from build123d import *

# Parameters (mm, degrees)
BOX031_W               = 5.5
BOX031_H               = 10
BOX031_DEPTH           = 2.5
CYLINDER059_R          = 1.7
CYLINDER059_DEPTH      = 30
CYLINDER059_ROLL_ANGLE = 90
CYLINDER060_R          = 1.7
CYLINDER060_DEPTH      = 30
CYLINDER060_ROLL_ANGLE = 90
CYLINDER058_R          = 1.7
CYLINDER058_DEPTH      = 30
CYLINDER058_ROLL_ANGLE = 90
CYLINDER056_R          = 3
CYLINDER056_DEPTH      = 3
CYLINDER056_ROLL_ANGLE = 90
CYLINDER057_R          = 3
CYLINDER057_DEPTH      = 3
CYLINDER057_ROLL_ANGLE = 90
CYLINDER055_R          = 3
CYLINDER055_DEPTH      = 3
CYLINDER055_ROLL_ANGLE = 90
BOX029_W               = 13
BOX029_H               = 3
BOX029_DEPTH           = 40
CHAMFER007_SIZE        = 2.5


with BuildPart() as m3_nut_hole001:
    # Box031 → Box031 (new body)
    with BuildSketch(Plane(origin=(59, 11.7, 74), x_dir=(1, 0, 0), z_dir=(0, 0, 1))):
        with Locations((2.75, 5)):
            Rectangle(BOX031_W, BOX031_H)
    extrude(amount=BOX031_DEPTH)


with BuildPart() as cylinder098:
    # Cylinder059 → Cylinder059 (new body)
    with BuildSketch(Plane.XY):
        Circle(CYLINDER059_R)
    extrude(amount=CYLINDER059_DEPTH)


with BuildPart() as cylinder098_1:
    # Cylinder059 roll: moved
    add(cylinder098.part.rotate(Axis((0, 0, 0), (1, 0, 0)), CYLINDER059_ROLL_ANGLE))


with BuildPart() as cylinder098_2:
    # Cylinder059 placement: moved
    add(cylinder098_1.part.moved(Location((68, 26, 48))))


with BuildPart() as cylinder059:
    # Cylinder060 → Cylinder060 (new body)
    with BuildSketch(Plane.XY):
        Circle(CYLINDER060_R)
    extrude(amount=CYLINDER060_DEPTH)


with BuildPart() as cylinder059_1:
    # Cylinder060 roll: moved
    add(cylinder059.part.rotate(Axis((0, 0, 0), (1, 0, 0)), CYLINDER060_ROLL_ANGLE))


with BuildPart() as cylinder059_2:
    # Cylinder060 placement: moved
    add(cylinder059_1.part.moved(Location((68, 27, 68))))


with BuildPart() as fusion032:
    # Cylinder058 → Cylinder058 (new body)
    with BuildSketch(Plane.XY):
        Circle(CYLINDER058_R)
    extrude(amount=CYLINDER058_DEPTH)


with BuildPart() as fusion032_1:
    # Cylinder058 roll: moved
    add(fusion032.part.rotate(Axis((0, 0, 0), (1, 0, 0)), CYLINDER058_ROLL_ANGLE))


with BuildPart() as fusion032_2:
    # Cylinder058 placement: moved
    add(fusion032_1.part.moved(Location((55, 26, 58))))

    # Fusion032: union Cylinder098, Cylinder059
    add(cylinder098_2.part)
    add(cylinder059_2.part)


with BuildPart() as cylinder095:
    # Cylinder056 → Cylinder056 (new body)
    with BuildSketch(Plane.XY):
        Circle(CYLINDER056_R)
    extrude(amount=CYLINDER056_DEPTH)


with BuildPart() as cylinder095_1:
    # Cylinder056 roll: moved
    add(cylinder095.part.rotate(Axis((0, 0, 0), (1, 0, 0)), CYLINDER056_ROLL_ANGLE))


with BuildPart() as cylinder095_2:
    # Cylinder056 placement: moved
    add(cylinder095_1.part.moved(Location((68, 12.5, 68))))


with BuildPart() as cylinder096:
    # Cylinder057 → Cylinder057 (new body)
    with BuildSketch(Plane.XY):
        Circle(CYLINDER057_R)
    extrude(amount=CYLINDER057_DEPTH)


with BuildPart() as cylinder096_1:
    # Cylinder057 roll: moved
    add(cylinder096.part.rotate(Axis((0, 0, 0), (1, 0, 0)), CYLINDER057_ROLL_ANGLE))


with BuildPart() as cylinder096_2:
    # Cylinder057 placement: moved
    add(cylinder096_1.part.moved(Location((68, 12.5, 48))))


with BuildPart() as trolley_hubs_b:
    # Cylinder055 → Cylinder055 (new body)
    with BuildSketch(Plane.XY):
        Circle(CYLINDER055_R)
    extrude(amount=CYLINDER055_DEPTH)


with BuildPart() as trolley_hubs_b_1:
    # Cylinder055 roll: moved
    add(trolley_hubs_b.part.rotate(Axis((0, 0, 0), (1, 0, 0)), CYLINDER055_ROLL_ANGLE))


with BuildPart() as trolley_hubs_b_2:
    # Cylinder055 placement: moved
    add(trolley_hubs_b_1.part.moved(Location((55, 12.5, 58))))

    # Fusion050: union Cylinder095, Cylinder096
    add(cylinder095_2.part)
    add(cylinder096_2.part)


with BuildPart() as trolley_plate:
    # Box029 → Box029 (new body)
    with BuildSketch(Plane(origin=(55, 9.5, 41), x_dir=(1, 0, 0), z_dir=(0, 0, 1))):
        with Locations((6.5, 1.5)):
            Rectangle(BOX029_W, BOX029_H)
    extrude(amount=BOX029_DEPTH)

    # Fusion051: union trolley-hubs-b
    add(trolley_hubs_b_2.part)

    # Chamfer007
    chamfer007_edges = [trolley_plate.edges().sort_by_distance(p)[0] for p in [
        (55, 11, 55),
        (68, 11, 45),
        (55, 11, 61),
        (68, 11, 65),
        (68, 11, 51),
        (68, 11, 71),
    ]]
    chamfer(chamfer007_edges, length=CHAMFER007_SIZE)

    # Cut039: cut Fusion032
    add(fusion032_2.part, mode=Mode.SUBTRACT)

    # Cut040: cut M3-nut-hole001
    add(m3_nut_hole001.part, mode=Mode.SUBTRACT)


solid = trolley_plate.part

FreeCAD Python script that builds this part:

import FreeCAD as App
import Part
import Sketcher

V = App.Vector
Q = App.Units.Quantity


def edges_at(feature, points):
    """Names of the edges that pass closest to the given points."""
    edges = feature.Shape.Edges
    near = lambda p: min(range(len(edges)), key=lambda i: edges[i].distToShape(Part.Vertex(*p))[0])
    return sorted({f"Edge{near(p) + 1}" for p in points})

doc = App.newDocument("Part")
body = doc.addObject("PartDesign::Body", "Body")

# Sketch on XY plane
sketch1 = body.newObject("Sketcher::SketchObject", "Sketch")
sketch1.AttachmentSupport = (doc.getObject("XY_Plane"), [""])
sketch1.MapMode = "FlatFace"
sketch1.AttachmentOffset = App.Placement(V(0, 0, 74), App.Rotation())
sketch1.addGeometry(Part.LineSegment(V(59, 21.7, 0), V(59, 11.7, 0)), False)
sketch1.addGeometry(Part.LineSegment(V(59, 11.7, 0), V(64.5, 11.7, 0)), False)
sketch1.addGeometry(Part.LineSegment(V(64.5, 11.7, 0), V(64.5, 21.7, 0)), False)
sketch1.addGeometry(Part.LineSegment(V(64.5, 21.7, 0), V(59, 21.7, 0)), False)
sketch1.addConstraint(Sketcher.Constraint("Coincident", 0, 2, 1, 1))
sketch1.addConstraint(Sketcher.Constraint("Coincident", 1, 2, 2, 1))
sketch1.addConstraint(Sketcher.Constraint("Coincident", 2, 2, 3, 1))
sketch1.addConstraint(Sketcher.Constraint("Coincident", 3, 2, 0, 1))
sketch1.addConstraint(Sketcher.Constraint("Vertical", 0))
sketch1.addConstraint(Sketcher.Constraint("Horizontal", 1))
sketch1.addConstraint(Sketcher.Constraint("Vertical", 2))
sketch1.addConstraint(Sketcher.Constraint("Horizontal", 3))
sketch1.addConstraint(Sketcher.Constraint("DistanceY", 0, 2, 0, 1, Q("10 mm")))
sketch1.addConstraint(Sketcher.Constraint("DistanceX", 1, 1, 1, 2, Q("5.5 mm")))
sketch1.addConstraint(Sketcher.Constraint("DistanceX", -1, 1, 0, 2, Q("59 mm")))
sketch1.addConstraint(Sketcher.Constraint("DistanceY", -1, 1, 0, 2, Q("11.7 mm")))
pad1 = body.newObject("PartDesign::Pad", "Pad")
pad1.Profile = sketch1
pad1.Length = 2.5
body2 = doc.addObject("PartDesign::Body", "Body001")

# Sketch on XY plane
sketch2 = body2.newObject("Sketcher::SketchObject", "Sketch001")
sketch2.AttachmentSupport = (doc.getObject("XY_Plane001"), [""])
sketch2.MapMode = "FlatFace"
sketch2.addGeometry(Part.Circle(V(0, 0, 0), V(0, 0, 1), 1.7), False)
sketch2.addConstraint(Sketcher.Constraint("Coincident", 0, 3, -1, 1))
sketch2.addConstraint(Sketcher.Constraint("Diameter", 0, Q("3.4 mm")))
pad2 = body2.newObject("PartDesign::Pad", "Pad001")
pad2.Profile = sketch2
pad2.Length = 30
body3 = doc.addObject("PartDesign::Body", "Body002")
doc.recompute()

body2.Placement = App.Placement(V(0, 0, 0), App.Rotation(V(1, 0, 0), 90))
boolean = body3.newObject("PartDesign::Boolean", "Boolean")
boolean.Type = "Fuse"
boolean.addObjects([body2])
body4 = doc.addObject("PartDesign::Body", "Body003")
doc.recompute()

body3.Placement = App.Placement(V(68, 26, 48), App.Rotation(V(0, 0, 1), 0))
boolean2 = body4.newObject("PartDesign::Boolean", "Boolean001")
boolean2.Type = "Fuse"
boolean2.addObjects([body3])
body5 = doc.addObject("PartDesign::Body", "Body004")

# Sketch on XY plane
sketch3 = body5.newObject("Sketcher::SketchObject", "Sketch002")
sketch3.AttachmentSupport = (doc.getObject("XY_Plane004"), [""])
sketch3.MapMode = "FlatFace"
sketch3.addGeometry(Part.Circle(V(0, 0, 0), V(0, 0, 1), 1.7), False)
sketch3.addConstraint(Sketcher.Constraint("Coincident", 0, 3, -1, 1))
sketch3.addConstraint(Sketcher.Constraint("Diameter", 0, Q("3.4 mm")))
pad3 = body5.newObject("PartDesign::Pad", "Pad002")
pad3.Profile = sketch3
pad3.Length = 30
body6 = doc.addObject("PartDesign::Body", "Body005")
doc.recompute()

body5.Placement = App.Placement(V(0, 0, 0), App.Rotation(V(1, 0, 0), 90))
boolean3 = body6.newObject("PartDesign::Boolean", "Boolean002")
boolean3.Type = "Fuse"
boolean3.addObjects([body5])
body7 = doc.addObject("PartDesign::Body", "Body006")
doc.recompute()

body6.Placement = App.Placement(V(68, 27, 68), App.Rotation(V(0, 0, 1), 0))
boolean4 = body7.newObject("PartDesign::Boolean", "Boolean003")
boolean4.Type = "Fuse"
boolean4.addObjects([body6])
body8 = doc.addObject("PartDesign::Body", "Body007")

# Sketch on XY plane
sketch4 = body8.newObject("Sketcher::SketchObject", "Sketch003")
sketch4.AttachmentSupport = (doc.getObject("XY_Plane007"), [""])
sketch4.MapMode = "FlatFace"
sketch4.addGeometry(Part.Circle(V(0, 0, 0), V(0, 0, 1), 1.7), False)
sketch4.addConstraint(Sketcher.Constraint("Coincident", 0, 3, -1, 1))
sketch4.addConstraint(Sketcher.Constraint("Diameter", 0, Q("3.4 mm")))
pad4 = body8.newObject("PartDesign::Pad", "Pad003")
pad4.Profile = sketch4
pad4.Length = 30
body9 = doc.addObject("PartDesign::Body", "Body008")
doc.recompute()

body8.Placement = App.Placement(V(0, 0, 0), App.Rotation(V(1, 0, 0), 90))
boolean5 = body9.newObject("PartDesign::Boolean", "Boolean004")
boolean5.Type = "Fuse"
boolean5.addObjects([body8])
body10 = doc.addObject("PartDesign::Body", "Body009")
body10.AllowCompound = True
doc.recompute()

body9.Placement = App.Placement(V(55, 26, 58), App.Rotation(V(0, 0, 1), 0))
boolean6 = body10.newObject("PartDesign::Boolean", "Boolean005")
boolean6.Type = "Fuse"
boolean6.addObjects([body9])
doc.recompute()

boolean7 = body10.newObject("PartDesign::Boolean", "Boolean006")
boolean7.Type = "Fuse"
boolean7.addObjects([body4])
doc.recompute()

boolean8 = body10.newObject("PartDesign::Boolean", "Boolean007")
boolean8.Type = "Fuse"
boolean8.addObjects([body7])
body11 = doc.addObject("PartDesign::Body", "Body010")

# Sketch on XY plane
sketch5 = body11.newObject("Sketcher::SketchObject", "Sketch004")
sketch5.AttachmentSupport = (doc.getObject("XY_Plane010"), [""])
sketch5.MapMode = "FlatFace"
sketch5.addGeometry(Part.Circle(V(0, 0, 0), V(0, 0, 1), 3), False)
sketch5.addConstraint(Sketcher.Constraint("Coincident", 0, 3, -1, 1))
sketch5.addConstraint(Sketcher.Constraint("Diameter", 0, Q("6 mm")))
pad5 = body11.newObject("PartDesign::Pad", "Pad004")
pad5.Profile = sketch5
pad5.Length = 3
body12 = doc.addObject("PartDesign::Body", "Body011")
doc.recompute()

body11.Placement = App.Placement(V(0, 0, 0), App.Rotation(V(1, 0, 0), 90))
boolean9 = body12.newObject("PartDesign::Boolean", "Boolean008")
boolean9.Type = "Fuse"
boolean9.addObjects([body11])
body13 = doc.addObject("PartDesign::Body", "Body012")
doc.recompute()

body12.Placement = App.Placement(V(68, 12.5, 68), App.Rotation(V(0, 0, 1), 0))
boolean10 = body13.newObject("PartDesign::Boolean", "Boolean009")
boolean10.Type = "Fuse"
boolean10.addObjects([body12])
body14 = doc.addObject("PartDesign::Body", "Body013")

# Sketch on XY plane
sketch6 = body14.newObject("Sketcher::SketchObject", "Sketch005")
sketch6.AttachmentSupport = (doc.getObject("XY_Plane013"), [""])
sketch6.MapMode = "FlatFace"
sketch6.addGeometry(Part.Circle(V(0, 0, 0), V(0, 0, 1), 3), False)
sketch6.addConstraint(Sketcher.Constraint("Coincident", 0, 3, -1, 1))
sketch6.addConstraint(Sketcher.Constraint("Diameter", 0, Q("6 mm")))
pad6 = body14.newObject("PartDesign::Pad", "Pad005")
pad6.Profile = sketch6
pad6.Length = 3
body15 = doc.addObject("PartDesign::Body", "Body014")
doc.recompute()

body14.Placement = App.Placement(V(0, 0, 0), App.Rotation(V(1, 0, 0), 90))
boolean11 = body15.newObject("PartDesign::Boolean", "Boolean010")
boolean11.Type = "Fuse"
boolean11.addObjects([body14])
body16 = doc.addObject("PartDesign::Body", "Body015")
doc.recompute()

body15.Placement = App.Placement(V(68, 12.5, 48), App.Rotation(V(0, 0, 1), 0))
boolean12 = body16.newObject("PartDesign::Boolean", "Boolean011")
boolean12.Type = "Fuse"
boolean12.addObjects([body15])
body17 = doc.addObject("PartDesign::Body", "Body016")

# Sketch on XY plane
sketch7 = body17.newObject("Sketcher::SketchObject", "Sketch006")
sketch7.AttachmentSupport = (doc.getObject("XY_Plane016"), [""])
sketch7.MapMode = "FlatFace"
sketch7.addGeometry(Part.Circle(V(0, 0, 0), V(0, 0, 1), 3), False)
sketch7.addConstraint(Sketcher.Constraint("Coincident", 0, 3, -1, 1))
sketch7.addConstraint(Sketcher.Constraint("Diameter", 0, Q("6 mm")))
pad7 = body17.newObject("PartDesign::Pad", "Pad006")
pad7.Profile = sketch7
pad7.Length = 3
body18 = doc.addObject("PartDesign::Body", "Body017")
doc.recompute()

body17.Placement = App.Placement(V(0, 0, 0), App.Rotation(V(1, 0, 0), 90))
boolean13 = body18.newObject("PartDesign::Boolean", "Boolean012")
boolean13.Type = "Fuse"
boolean13.addObjects([body17])
body19 = doc.addObject("PartDesign::Body", "Body018")
body19.AllowCompound = True
doc.recompute()

body18.Placement = App.Placement(V(55, 12.5, 58), App.Rotation(V(0, 0, 1), 0))
boolean14 = body19.newObject("PartDesign::Boolean", "Boolean013")
boolean14.Type = "Fuse"
boolean14.addObjects([body18])
doc.recompute()

boolean15 = body19.newObject("PartDesign::Boolean", "Boolean014")
boolean15.Type = "Fuse"
boolean15.addObjects([body13])
doc.recompute()

boolean16 = body19.newObject("PartDesign::Boolean", "Boolean015")
boolean16.Type = "Fuse"
boolean16.addObjects([body16])
body20 = doc.addObject("PartDesign::Body", "Body019")

# Sketch on XY plane
sketch8 = body20.newObject("Sketcher::SketchObject", "Sketch007")
sketch8.AttachmentSupport = (doc.getObject("XY_Plane019"), [""])
sketch8.MapMode = "FlatFace"
sketch8.AttachmentOffset = App.Placement(V(0, 0, 41), App.Rotation())
sketch8.addGeometry(Part.LineSegment(V(55, 12.5, 0), V(55, 9.5, 0)), False)
sketch8.addGeometry(Part.LineSegment(V(55, 9.5, 0), V(68, 9.5, 0)), False)
sketch8.addGeometry(Part.LineSegment(V(68, 9.5, 0), V(68, 12.5, 0)), False)
sketch8.addGeometry(Part.LineSegment(V(68, 12.5, 0), V(55, 12.5, 0)), False)
sketch8.addConstraint(Sketcher.Constraint("Coincident", 0, 2, 1, 1))
sketch8.addConstraint(Sketcher.Constraint("Coincident", 1, 2, 2, 1))
sketch8.addConstraint(Sketcher.Constraint("Coincident", 2, 2, 3, 1))
sketch8.addConstraint(Sketcher.Constraint("Coincident", 3, 2, 0, 1))
sketch8.addConstraint(Sketcher.Constraint("Vertical", 0))
sketch8.addConstraint(Sketcher.Constraint("Horizontal", 1))
sketch8.addConstraint(Sketcher.Constraint("Vertical", 2))
sketch8.addConstraint(Sketcher.Constraint("Horizontal", 3))
sketch8.addConstraint(Sketcher.Constraint("DistanceX", 1, 1, 1, 2, Q("13 mm")))
sketch8.addConstraint(Sketcher.Constraint("DistanceY", 0, 2, 0, 1, Q("3 mm")))
sketch8.addConstraint(Sketcher.Constraint("DistanceX", -1, 1, 0, 2, Q("55 mm")))
sketch8.addConstraint(Sketcher.Constraint("DistanceY", -1, 1, 0, 2, Q("9.5 mm")))
pad8 = body20.newObject("PartDesign::Pad", "Pad007")
pad8.Profile = sketch8
pad8.Length = 40
doc.recompute()

boolean17 = body20.newObject("PartDesign::Boolean", "Boolean016")
boolean17.Type = "Fuse"
boolean17.addObjects([body19])
doc.recompute()

chamfer = body20.newObject("PartDesign::Chamfer", "Chamfer")
chamfer.Base = (boolean17, edges_at(boolean17, [
    (55, 11, 55),
    (68, 11, 45),
    (55, 11, 61),
    (68, 11, 65),
    (68, 11, 51),
    (68, 11, 71),
]))
chamfer.Size = 2.5
doc.recompute()

boolean18 = body20.newObject("PartDesign::Boolean", "Boolean017")
boolean18.Type = "Cut"
boolean18.addObjects([body10])
doc.recompute()

boolean19 = body20.newObject("PartDesign::Boolean", "Boolean018")
boolean19.Type = "Cut"
boolean19.addObjects([body])

doc.recompute()
